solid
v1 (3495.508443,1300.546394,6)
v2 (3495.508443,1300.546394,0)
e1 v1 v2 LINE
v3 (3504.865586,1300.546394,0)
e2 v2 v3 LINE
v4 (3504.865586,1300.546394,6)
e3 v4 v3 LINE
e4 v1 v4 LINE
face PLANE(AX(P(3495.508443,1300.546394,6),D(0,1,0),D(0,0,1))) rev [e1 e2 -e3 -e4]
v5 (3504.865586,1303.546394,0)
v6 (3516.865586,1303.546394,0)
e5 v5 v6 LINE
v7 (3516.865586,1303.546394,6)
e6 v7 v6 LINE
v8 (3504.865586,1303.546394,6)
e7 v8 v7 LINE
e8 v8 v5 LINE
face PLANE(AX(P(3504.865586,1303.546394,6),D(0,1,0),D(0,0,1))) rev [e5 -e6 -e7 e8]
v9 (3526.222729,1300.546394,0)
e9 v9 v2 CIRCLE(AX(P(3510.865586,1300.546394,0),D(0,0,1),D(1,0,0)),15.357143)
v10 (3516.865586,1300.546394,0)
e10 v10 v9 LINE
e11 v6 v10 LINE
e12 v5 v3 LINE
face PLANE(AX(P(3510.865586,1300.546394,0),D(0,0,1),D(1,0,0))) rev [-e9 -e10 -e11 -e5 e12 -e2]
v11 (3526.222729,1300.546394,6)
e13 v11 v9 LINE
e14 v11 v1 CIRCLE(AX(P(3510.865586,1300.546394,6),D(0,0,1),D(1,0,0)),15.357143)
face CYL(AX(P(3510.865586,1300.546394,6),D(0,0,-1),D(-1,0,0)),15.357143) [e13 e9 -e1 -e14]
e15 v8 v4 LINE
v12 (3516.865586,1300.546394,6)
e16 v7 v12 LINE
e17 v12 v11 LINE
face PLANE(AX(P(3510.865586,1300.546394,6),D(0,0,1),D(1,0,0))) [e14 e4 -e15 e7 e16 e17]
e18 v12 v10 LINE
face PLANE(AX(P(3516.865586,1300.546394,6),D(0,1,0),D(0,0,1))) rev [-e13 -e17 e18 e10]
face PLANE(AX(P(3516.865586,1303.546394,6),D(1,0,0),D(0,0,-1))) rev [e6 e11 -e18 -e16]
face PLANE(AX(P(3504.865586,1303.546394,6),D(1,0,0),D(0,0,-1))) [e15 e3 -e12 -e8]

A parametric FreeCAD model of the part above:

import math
import FreeCAD as App
import Part
import Sketcher

V = App.Vector
Q = App.Units.Quantity

doc = App.newDocument("Part")
body = doc.addObject("PartDesign::Body", "Body")

sketch1 = doc.addObject("Sketcher::SketchObject", "Sketch")
body.addObject(sketch1)
sketch1.AttachmentSupport = (doc.XY_Plane, [""])
sketch1.MapMode = "FlatFace"
sketch1.addGeometry([
    Part.LineSegment(V(3516.9, 1303.5, 0), V(3516.9, 1300.5, 0)),
    Part.LineSegment(V(3516.9, 1300.5, 0), V(3526.2, 1300.5, 0)),
    Part.ArcOfCircle(Part.Circle(V(3510.9, 1300.5, 0), V(0, 0, 1), 15.4), math.radians(0), math.radians(180)),
    Part.LineSegment(V(3495.5, 1300.5, 0), V(3504.9, 1300.5, 0)),
    Part.LineSegment(V(3504.9, 1300.5, 0), V(3504.9, 1303.5, 0)),
    Part.LineSegment(V(3504.9, 1303.5, 0), V(3516.9, 1303.5, 0)),
], False)
sketch1.addConstraint([
    Sketcher.Constraint("Coincident", 0, 2, 1, 1),
    Sketcher.Constraint("Coincident", 1, 2, 2, 1),
    Sketcher.Constraint("Coincident", 2, 2, 3, 1),
    Sketcher.Constraint("Coincident", 3, 2, 4, 1),
    Sketcher.Constraint("Coincident", 4, 2, 5, 1),
    Sketcher.Constraint("Coincident", 5, 2, 0, 1),
    Sketcher.Constraint("Vertical", 0),
    Sketcher.Constraint("Horizontal", 1),
    Sketcher.Constraint("Horizontal", 3),
    Sketcher.Constraint("Vertical", 4),
    Sketcher.Constraint("Horizontal", 5),
    Sketcher.Constraint("Horizontal", 2, 3, 0, 2),
    Sketcher.Constraint("Horizontal", 1, 2, 2, 2),
    Sketcher.Constraint("Equal", 1, 3),
    Sketcher.Constraint("DistanceX", 5, 1, 5, 2, Q("12 mm")),
    Sketcher.Constraint("DistanceY", 0, 2, 0, 1, Q("3 mm")),
    Sketcher.Constraint("Radius", 2, Q("15.357143 mm")),
    Sketcher.Constraint("DistanceX", -1, 1, 1, 2, Q("3526.222729 mm")),
    Sketcher.Constraint("DistanceY", -1, 1, 2, 3, Q("1300.546394 mm")),
])
pad1 = doc.addObject("PartDesign::Pad", "Pad")
body.addObject(pad1)
pad1.Profile = sketch1
pad1.Length = 6

doc.recompute()
